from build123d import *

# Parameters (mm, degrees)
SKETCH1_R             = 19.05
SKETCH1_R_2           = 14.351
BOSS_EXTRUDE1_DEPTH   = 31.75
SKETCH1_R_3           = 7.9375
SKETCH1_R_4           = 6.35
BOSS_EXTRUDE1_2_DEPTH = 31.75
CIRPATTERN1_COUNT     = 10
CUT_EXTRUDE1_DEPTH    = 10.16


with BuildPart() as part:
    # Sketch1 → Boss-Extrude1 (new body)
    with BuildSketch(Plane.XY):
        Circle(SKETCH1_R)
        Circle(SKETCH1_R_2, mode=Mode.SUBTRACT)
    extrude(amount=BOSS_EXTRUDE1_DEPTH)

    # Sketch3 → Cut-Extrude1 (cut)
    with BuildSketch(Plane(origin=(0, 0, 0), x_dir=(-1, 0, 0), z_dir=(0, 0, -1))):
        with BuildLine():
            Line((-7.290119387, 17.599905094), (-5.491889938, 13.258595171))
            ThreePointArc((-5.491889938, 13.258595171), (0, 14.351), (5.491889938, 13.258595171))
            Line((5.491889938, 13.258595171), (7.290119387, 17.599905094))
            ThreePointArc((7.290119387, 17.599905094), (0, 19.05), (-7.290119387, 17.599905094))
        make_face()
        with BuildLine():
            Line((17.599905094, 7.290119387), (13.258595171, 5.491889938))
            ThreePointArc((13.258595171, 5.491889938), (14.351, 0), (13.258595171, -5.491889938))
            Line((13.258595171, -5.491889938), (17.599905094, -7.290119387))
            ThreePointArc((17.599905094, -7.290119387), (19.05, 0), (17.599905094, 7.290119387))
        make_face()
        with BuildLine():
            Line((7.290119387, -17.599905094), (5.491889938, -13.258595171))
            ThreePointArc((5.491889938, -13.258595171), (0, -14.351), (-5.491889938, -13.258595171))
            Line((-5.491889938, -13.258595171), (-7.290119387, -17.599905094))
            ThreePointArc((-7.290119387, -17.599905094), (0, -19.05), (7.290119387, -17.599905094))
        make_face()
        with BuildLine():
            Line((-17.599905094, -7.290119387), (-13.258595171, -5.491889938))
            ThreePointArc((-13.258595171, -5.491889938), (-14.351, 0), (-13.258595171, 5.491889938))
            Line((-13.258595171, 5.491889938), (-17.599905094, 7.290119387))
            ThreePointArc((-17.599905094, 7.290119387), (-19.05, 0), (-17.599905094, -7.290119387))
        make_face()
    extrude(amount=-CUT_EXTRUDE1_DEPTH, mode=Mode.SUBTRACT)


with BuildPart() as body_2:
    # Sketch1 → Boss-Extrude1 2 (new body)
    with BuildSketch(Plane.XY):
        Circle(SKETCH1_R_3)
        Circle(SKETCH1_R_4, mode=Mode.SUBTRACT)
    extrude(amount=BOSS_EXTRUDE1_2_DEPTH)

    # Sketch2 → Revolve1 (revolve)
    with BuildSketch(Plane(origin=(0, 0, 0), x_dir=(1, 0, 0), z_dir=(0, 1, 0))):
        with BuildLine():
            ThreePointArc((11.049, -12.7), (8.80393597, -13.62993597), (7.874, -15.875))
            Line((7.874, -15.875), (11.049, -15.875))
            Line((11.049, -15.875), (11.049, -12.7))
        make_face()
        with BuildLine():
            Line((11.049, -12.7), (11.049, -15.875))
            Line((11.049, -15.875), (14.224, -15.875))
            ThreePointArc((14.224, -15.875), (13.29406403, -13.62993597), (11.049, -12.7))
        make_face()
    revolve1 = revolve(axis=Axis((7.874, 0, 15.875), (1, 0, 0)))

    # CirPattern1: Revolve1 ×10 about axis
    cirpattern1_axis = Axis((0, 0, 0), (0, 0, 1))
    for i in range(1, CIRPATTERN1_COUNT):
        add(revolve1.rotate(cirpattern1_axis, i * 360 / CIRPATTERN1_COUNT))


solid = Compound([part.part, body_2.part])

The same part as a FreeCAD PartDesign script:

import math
import FreeCAD as App
import Part
import Sketcher
from FreeCAD import Vector
Q = App.Units.Quantity

doc = App.newDocument("Part")
body = doc.addObject("PartDesign::Body", "Body")

# Sketch on XY plane
sketch1 = doc.addObject("Sketcher::SketchObject", "Sketch")
body.addObject(sketch1)
sketch1.AttachmentSupport = (doc.XY_Plane, [""])
sketch1.MapMode = "FlatFace"
sketch1.addGeometry([
    Part.Circle(Vector(0, 0, 0), Vector(0, 0, 1), 19),
    Part.Circle(Vector(0, 0, 0), Vector(0, 0, 1), 14),
], False)
sketch1.addConstraint([
    Sketcher.Constraint("Coincident", 0, 3, -1, 1),
    Sketcher.Constraint("Coincident", 1, 3, -1, 1),
    Sketcher.Constraint("Diameter", 0, Q("1.5 in")),
    Sketcher.Constraint("Diameter", 1, Q("1.13 in")),
])
pad1 = doc.addObject("PartDesign::Pad", "Pad")
body.addObject(pad1)
pad1.Profile = sketch1
pad1.Length = Q("1.25 in")

# Sketch on XY plane
sketch2 = doc.addObject("Sketcher::SketchObject", "Sketch001")
body.addObject(sketch2)
sketch2.AttachmentSupport = (doc.XY_Plane, [""])
sketch2.MapMode = "FlatFace"
sketch2.addGeometry([
    Part.LineSegment(Vector(7.3, 17.6, 0), Vector(5.5, 13.3, 0)),  # 0
    Part.ArcOfCircle(Part.Circle(Vector(0, 0, 0), Vector(0, 0, 1), 14.4), math.radians(67), math.radians(113)),  # 1
    Part.LineSegment(Vector(-5.5, 13.3, 0), Vector(-7.3, 17.6, 0)),  # 2
    Part.ArcOfCircle(Part.Circle(Vector(0, 0, 0), Vector(0, 0, 1), 19), math.radians(67), math.radians(113)),  # 3
    Part.LineSegment(Vector(-17.6, 7.3, 0), Vector(-13.3, 5.5, 0)),  # 4
    Part.ArcOfCircle(Part.Circle(Vector(0, 0, 0), Vector(0, 0, 1), 14.4), math.radians(157), math.radians(203)),  # 5
    Part.LineSegment(Vector(-13.3, -5.5, 0), Vector(-17.6, -7.3, 0)),  # 6
    Part.ArcOfCircle(Part.Circle(Vector(0, 0, 0), Vector(0, 0, 1), 19), math.radians(157), math.radians(203)),  # 7
    Part.LineSegment(Vector(-7.3, -17.6, 0), Vector(-5.5, -13.3, 0)),  # 8
    Part.ArcOfCircle(Part.Circle(Vector(0, 0, 0), Vector(0, 0, 1), 14.4), math.radians(-113), math.radians(-67)),  # 9
    Part.LineSegment(Vector(5.5, -13.3, 0), Vector(7.3, -17.6, 0)),  # 10
    Part.ArcOfCircle(Part.Circle(Vector(0, 0, 0), Vector(0, 0, 1), 19), math.radians(-113), math.radians(-67)),  # 11
    Part.LineSegment(Vector(17.6, -7.3, 0), Vector(13.3, -5.5, 0)),  # 12
    Part.ArcOfCircle(Part.Circle(Vector(0, 0, 0), Vector(0, 0, 1), 14.4), math.radians(-23), math.radians(23)),  # 13
    Part.LineSegment(Vector(13.3, 5.5, 0), Vector(17.6, 7.3, 0)),  # 14
    Part.ArcOfCircle(Part.Circle(Vector(0, 0, 0), Vector(0, 0, 1), 19), math.radians(-23), math.radians(23)),  # 15
], False)
sketch2.addConstraint([
    Sketcher.Constraint("Coincident", 0, 2, 1, 1),
    Sketcher.Constraint("Coincident", 1, 2, 2, 1),
    Sketcher.Constraint("Coincident", 2, 2, 3, 2),
    Sketcher.Constraint("Coincident", 3, 1, 0, 1),
    Sketcher.Constraint("Coincident", 4, 2, 5, 1),
    Sketcher.Constraint("Coincident", 5, 2, 6, 1),
    Sketcher.Constraint("Coincident", 6, 2, 7, 2),
    Sketcher.Constraint("Coincident", 7, 1, 4, 1),
    Sketcher.Constraint("Coincident", 8, 2, 9, 1),
    Sketcher.Constraint("Coincident", 9, 2, 10, 1),
    Sketcher.Constraint("Coincident", 10, 2, 11, 2),
    Sketcher.Constraint("Coincident", 11, 1, 8, 1),
    Sketcher.Constraint("Coincident", 12, 2, 13, 1),
    Sketcher.Constraint("Coincident", 13, 2, 14, 1),
    Sketcher.Constraint("Coincident", 14, 2, 15, 2),
    Sketcher.Constraint("Coincident", 15, 1, 12, 1),
    Sketcher.Constraint("Coincident", 1, 3, -1, 1),
    Sketcher.Constraint("Coincident", 3, 3, -1, 1),
    Sketcher.Constraint("Coincident", 5, 3, -1, 1),
    Sketcher.Constraint("Coincident", 7, 3, -1, 1),
    Sketcher.Constraint("Coincident", 9, 3, -1, 1),
    Sketcher.Constraint("Coincident", 11, 3, -1, 1),
    Sketcher.Constraint("Coincident", 13, 3, -1, 1),
    Sketcher.Constraint("Coincident", 15, 3, -1, 1),
    Sketcher.Constraint("Equal", 1, 5),
    Sketcher.Constraint("Equal", 3, 7),
    Sketcher.Constraint("Equal", 5, 9),
    Sketcher.Constraint("Equal", 7, 11),
    Sketcher.Constraint("Equal", 9, 13),
    Sketcher.Constraint("Equal", 11, 15),
    Sketcher.Constraint("Perpendicular", 0, 4),
    Sketcher.Constraint("Perpendicular", 2, 6),
    Sketcher.Constraint("Perpendicular", 4, 8),
    Sketcher.Constraint("Perpendicular", 6, 10),
    Sketcher.Constraint("Perpendicular", 8, 12),
    Sketcher.Constraint("Perpendicular", 10, 14),
    Sketcher.Constraint("Horizontal", 0, 2, 1, 2),
    Sketcher.Constraint("Horizontal", 2, 2, 3, 1),
    Sketcher.Constraint("Horizontal", 8, 2, 9, 2),
    Sketcher.Constraint("Horizontal", 5, 2, 12, 2),
    Sketcher.Constraint("Horizontal", 4, 2, 13, 2),
    Sketcher.Constraint("Vertical", 4, 2, 5, 2),
    Sketcher.Constraint("Vertical", 1, 2, 8, 2),
    Sketcher.Constraint("Radius", 3, Q("0.75 in")),
    Sketcher.Constraint("Radius", 1, Q("0.565 in")),
    Sketcher.Constraint("Angle", 0, Q("-112.5 deg")),
    Sketcher.Constraint("DistanceX", -1, 1, 0, 2, 5.49189),
    Sketcher.Constraint("DistanceY", -1, 1, 4, 2, 5.49189),
])
pocket1 = doc.addObject("PartDesign::Pocket", "Pocket")
body.addObject(pocket1)
pocket1.Profile = sketch2
pocket1.Length = Q("0.4 in")
pocket1.Reversed = True
body2 = doc.addObject("PartDesign::Body", "Body001")

# Sketch on XY plane
sketch3 = doc.addObject("Sketcher::SketchObject", "Sketch002")
body2.addObject(sketch3)
sketch3.AttachmentSupport = (doc.getObject("XY_Plane001"), [""])
sketch3.MapMode = "FlatFace"
sketch3.addGeometry([
    Part.Circle(Vector(0, 0, 0), Vector(0, 0, 1), 8),
    Part.Circle(Vector(0, 0, 0), Vector(0, 0, 1), 6),
], False)
sketch3.addConstraint([
    Sketcher.Constraint("Coincident", 0, 3, -1, 1),
    Sketcher.Constraint("Coincident", 1, 3, -1, 1),
    Sketcher.Constraint("Diameter", 1, Q("0.5 in")),
    Sketcher.Constraint("Diameter", 0, Q("0.625 in")),
])
pad2 = doc.addObject("PartDesign::Pad", "Pad001")
body2.addObject(pad2)
pad2.Profile = sketch3
pad2.Length = Q("1.25 in")

# Sketch on XZ plane
sketch4 = doc.addObject("Sketcher::SketchObject", "Sketch003")
body2.addObject(sketch4)
sketch4.AttachmentSupport = (doc.getObject("XZ_Plane001"), [""])
sketch4.MapMode = "FlatFace"
sketch4.addGeometry([
    Part.ArcOfCircle(Part.Circle(Vector(11, 15.9, 0), Vector(0, 0, 1), 3.2), math.radians(-180), math.radians(-90)),
    Part.LineSegment(Vector(7.9, 15.9, 0), Vector(14.2, 15.9, 0)),
    Part.ArcOfCircle(Part.Circle(Vector(11, 15.9, 0), Vector(0, 0, 1), 3.2), math.radians(-90), math.radians(0)),
], False)
sketch4.addGeometry(Part.LineSegment(Vector(7.9, 15.9, 0), Vector(14.2, 15.9, 0)), True)  # axis
sketch4.addConstraint([
    Sketcher.Constraint("Coincident", 0, 1, 1, 1),
    Sketcher.Constraint("Coincident", 1, 2, 2, 2),
    Sketcher.Constraint("Tangent", 2, 1, 0, 2),
    Sketcher.Constraint("Horizontal", 1),
    Sketcher.Constraint("Horizontal", 3),
    Sketcher.Constraint("Coincident", 3, 1, 0, 1),
    Sketcher.Constraint("Equal", 0, 2),
    Sketcher.Constraint("Horizontal", 2, 3, 0, 1),
    Sketcher.Constraint("Vertical", 0, 3, 2, 1),
    Sketcher.Constraint("Equal", 1, 3),
    Sketcher.Constraint("Radius", 0, Q("0.125 in")),
    Sketcher.Constraint("DistanceY", -1, 1, 2, 1, Q("0.5 in")),
    Sketcher.Constraint("DistanceX", -1, 1, 0, 1, Q("0.31 in")),
])
revolution = doc.addObject("PartDesign::Revolution", "Revolution")
body2.addObject(revolution)
revolution.Profile = sketch4
revolution.ReferenceAxis = (sketch4, ["Axis0"])
revolution.Angle = 360
doc.recompute()

polarpattern = doc.addObject("PartDesign::PolarPattern", "PolarPattern")
body2.addObject(polarpattern)
polarpattern.Originals = [revolution]
polarpattern.Axis = (doc.getObject("Z_Axis001"), [""])
polarpattern.Angle = 360
polarpattern.Occurrences = 10
body2.Tip = polarpattern

doc.recompute()
